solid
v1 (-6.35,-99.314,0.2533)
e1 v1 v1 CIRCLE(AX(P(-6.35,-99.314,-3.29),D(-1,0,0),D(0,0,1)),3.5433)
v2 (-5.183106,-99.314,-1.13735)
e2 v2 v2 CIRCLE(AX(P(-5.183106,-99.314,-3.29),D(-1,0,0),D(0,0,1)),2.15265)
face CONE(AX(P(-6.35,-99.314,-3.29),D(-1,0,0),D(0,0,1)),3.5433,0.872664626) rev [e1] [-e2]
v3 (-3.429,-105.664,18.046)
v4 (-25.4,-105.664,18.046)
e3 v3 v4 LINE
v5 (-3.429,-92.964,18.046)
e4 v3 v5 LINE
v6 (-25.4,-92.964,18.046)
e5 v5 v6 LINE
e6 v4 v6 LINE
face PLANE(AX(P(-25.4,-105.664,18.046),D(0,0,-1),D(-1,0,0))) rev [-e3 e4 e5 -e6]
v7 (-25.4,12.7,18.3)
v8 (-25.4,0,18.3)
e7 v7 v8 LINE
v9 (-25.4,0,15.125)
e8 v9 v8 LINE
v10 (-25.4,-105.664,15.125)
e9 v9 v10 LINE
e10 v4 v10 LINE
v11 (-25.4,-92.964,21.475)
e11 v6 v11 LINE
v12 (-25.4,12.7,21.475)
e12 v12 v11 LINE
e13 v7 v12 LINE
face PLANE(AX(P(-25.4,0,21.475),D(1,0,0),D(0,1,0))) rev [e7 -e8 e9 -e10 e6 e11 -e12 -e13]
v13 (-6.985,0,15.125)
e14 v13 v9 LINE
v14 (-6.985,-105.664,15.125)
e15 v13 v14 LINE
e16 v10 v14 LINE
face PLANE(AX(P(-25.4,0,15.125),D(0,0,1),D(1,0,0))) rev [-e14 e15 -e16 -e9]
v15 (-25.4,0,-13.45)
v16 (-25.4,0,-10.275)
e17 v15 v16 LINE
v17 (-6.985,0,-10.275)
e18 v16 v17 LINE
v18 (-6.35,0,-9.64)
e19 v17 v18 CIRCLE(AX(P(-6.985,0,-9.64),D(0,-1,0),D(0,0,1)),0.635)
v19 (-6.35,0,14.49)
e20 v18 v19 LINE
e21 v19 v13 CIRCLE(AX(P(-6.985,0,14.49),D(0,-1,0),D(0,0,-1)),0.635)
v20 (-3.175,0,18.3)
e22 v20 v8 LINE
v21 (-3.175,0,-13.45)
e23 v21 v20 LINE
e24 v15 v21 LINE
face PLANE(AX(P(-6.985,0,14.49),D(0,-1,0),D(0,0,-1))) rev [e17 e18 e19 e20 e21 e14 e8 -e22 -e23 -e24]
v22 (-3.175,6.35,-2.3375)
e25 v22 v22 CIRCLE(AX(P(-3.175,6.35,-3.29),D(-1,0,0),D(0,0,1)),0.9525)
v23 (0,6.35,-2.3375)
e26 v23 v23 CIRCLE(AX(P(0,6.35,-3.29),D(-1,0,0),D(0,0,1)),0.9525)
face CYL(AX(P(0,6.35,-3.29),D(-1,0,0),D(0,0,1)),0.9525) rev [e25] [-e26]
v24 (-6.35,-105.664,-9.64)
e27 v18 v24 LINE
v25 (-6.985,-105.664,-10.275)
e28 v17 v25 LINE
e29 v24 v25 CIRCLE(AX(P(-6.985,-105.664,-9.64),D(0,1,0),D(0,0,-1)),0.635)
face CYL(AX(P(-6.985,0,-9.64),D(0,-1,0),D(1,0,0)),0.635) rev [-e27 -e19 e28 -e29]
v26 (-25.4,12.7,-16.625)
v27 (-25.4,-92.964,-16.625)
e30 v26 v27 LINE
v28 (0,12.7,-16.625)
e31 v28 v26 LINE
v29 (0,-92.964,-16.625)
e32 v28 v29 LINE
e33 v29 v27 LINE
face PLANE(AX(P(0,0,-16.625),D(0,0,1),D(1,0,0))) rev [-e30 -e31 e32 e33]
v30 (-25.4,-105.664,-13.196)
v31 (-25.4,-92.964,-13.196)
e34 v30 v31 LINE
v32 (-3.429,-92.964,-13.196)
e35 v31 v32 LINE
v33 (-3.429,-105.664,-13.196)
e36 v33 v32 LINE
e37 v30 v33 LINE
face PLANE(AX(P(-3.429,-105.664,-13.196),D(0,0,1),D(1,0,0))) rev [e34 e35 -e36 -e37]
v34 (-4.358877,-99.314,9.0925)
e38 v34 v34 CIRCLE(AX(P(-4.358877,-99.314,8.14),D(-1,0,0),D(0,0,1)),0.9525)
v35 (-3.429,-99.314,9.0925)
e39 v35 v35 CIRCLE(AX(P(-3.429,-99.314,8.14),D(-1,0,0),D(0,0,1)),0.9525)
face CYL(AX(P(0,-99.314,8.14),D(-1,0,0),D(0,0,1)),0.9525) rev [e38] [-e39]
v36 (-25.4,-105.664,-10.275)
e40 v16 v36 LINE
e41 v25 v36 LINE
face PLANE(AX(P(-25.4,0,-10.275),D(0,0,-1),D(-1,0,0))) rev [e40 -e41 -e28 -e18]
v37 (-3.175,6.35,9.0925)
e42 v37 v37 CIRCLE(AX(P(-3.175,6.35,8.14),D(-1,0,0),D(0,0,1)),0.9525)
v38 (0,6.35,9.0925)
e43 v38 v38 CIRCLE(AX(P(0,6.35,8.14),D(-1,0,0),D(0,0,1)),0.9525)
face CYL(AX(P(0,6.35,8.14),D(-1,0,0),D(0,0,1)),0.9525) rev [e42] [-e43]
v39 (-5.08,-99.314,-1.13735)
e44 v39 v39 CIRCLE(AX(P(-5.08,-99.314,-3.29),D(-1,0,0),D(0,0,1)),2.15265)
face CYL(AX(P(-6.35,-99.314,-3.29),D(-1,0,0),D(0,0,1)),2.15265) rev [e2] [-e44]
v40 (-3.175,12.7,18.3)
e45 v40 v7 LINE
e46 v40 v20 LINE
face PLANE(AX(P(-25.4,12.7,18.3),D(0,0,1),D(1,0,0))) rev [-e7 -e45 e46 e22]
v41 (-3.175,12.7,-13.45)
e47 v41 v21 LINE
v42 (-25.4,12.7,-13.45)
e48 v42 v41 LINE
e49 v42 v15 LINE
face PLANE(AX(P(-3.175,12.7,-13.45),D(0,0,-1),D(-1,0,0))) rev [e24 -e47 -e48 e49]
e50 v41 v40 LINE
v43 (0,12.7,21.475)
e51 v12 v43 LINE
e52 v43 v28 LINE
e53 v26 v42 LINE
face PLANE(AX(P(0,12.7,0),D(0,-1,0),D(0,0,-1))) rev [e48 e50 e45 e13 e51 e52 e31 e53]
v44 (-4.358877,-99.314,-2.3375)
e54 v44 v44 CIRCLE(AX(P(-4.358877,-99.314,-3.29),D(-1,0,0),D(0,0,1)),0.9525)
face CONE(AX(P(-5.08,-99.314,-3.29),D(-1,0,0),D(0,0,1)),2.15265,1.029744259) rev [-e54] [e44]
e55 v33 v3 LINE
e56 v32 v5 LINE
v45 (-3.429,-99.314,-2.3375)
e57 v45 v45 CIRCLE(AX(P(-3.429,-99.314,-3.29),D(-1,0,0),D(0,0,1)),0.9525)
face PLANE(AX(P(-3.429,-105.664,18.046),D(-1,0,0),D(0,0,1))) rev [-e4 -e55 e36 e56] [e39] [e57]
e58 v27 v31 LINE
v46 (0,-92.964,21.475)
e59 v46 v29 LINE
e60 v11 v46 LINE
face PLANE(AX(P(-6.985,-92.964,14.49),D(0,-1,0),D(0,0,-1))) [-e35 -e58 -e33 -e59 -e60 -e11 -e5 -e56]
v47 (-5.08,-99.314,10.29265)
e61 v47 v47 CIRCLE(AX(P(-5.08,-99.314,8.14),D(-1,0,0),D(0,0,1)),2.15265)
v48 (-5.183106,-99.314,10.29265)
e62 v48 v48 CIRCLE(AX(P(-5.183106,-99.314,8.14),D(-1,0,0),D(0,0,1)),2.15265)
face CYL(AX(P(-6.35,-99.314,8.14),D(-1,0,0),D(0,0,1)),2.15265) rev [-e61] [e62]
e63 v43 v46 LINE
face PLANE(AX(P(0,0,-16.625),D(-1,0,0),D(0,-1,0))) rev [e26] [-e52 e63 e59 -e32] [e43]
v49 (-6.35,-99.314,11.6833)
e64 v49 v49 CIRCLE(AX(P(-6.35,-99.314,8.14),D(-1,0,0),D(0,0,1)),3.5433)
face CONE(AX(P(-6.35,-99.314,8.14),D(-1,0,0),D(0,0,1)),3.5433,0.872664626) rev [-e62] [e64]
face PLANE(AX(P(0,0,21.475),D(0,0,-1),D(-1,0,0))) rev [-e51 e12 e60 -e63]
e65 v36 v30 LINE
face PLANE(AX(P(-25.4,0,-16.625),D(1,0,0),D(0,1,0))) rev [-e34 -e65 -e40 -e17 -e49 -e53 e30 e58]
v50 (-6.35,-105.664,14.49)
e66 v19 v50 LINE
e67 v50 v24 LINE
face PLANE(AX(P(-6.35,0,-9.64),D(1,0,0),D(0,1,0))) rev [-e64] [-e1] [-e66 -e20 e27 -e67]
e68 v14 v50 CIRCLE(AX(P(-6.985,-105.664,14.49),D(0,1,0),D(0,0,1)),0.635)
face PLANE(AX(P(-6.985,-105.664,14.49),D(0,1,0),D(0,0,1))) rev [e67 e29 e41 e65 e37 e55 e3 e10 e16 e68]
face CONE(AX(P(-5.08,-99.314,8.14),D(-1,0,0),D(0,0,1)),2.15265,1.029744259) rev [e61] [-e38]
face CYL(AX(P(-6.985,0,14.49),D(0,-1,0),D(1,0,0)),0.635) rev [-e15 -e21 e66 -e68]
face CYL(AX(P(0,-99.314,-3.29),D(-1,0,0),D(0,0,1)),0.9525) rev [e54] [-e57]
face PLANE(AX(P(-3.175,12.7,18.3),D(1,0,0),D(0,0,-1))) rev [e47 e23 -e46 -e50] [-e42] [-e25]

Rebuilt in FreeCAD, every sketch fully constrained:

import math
import FreeCAD as App
import Part
import Sketcher
from FreeCAD import Vector
Q = App.Units.Quantity

doc = App.newDocument("Part")
params = doc.addObject("Spreadsheet::Sheet", "Params")
for row, (alias, value) in enumerate([
    ("sketch1_width", "1 in"),
    ("sketch1_height", "1.5 in"),
    ("sketch1_radius", "0.025 in"),
    ("sketch1_width2", "0.725 in"),
    ("sketch2_height", "3.66 in"),
    ("sketch3_radius", "0.025 in"),
    ("sketch3_height", "1.23 in"),
    ("sketch3_width", "0.865 in"),
    ("sketch3_width2", "0.725 in"),
    ("pad1_length", "0.5 in"),
    ("sketch4_width", "1 in"),
    ("sketch4_height", "1.5 in"),
    ("sketch4_height2", "1.25 in"),
    ("sketch4_width2", "0.875 in"),
    ("pad2_length", "0.5 in"),
    ("sketch5_diameter", "0.075 in"),
    ("sketch6_diameter", "0.075 in"),
    ("groove_angle", "360 deg"),
    ("linearpattern_pitch", "0.45 in"),
], start=1):
    params.set(f"A{row}", alias)
    params.set(f"B{row}", "=" + value)
    params.setAlias(f"B{row}", alias)

body = doc.addObject("PartDesign::Body", "Body")

sketch1 = body.newObject("Sketcher::SketchObject", "Sketch")
sketch1.AttachmentSupport = (doc.getObject("XZ_Plane"), [""])
sketch1.MapMode = "FlatFace"
sketch1.addGeometry(Part.LineSegment(Vector(0, -16.6, 0), Vector(-25.4, -16.6, 0)), False)
sketch1.addGeometry(Part.LineSegment(Vector(-25.4, -16.6, 0), Vector(-25.4, -10.3, 0)), False)
sketch1.addGeometry(Part.LineSegment(Vector(-25.4, -10.3, 0), Vector(-7, -10.3, 0)), False)
sketch1.addGeometry(Part.ArcOfCircle(Part.Circle(Vector(-7, -9.6, 0), Vector(0, 0, 1), 0.6), math.radians(-90), math.radians(0)), False)
sketch1.addGeometry(Part.LineSegment(Vector(-6.3, -9.6, 0), Vector(-6.3, 14.5, 0)), False)
sketch1.addGeometry(Part.ArcOfCircle(Part.Circle(Vector(-7, 14.5, 0), Vector(0, 0, 1), 0.6), math.radians(0), math.radians(90)), False)
sketch1.addGeometry(Part.LineSegment(Vector(-7, 15.1, 0), Vector(-25.4, 15.1, 0)), False)
sketch1.addGeometry(Part.LineSegment(Vector(-25.4, 15.1, 0), Vector(-25.4, 21.5, 0)), False)
sketch1.addGeometry(Part.LineSegment(Vector(-25.4, 21.5, 0), Vector(0, 21.5, 0)), False)
sketch1.addGeometry(Part.LineSegment(Vector(0, 21.5, 0), Vector(0, -16.6, 0)), False)
sketch1.addConstraint(Sketcher.Constraint("Coincident", 0, 2, 1, 1))
sketch1.addConstraint(Sketcher.Constraint("Coincident", 1, 2, 2, 1))
sketch1.addConstraint(Sketcher.Constraint("Tangent", 2, 2, 3, 1))
sketch1.addConstraint(Sketcher.Constraint("Tangent", 3, 2, 4, 1))
sketch1.addConstraint(Sketcher.Constraint("Tangent", 4, 2, 5, 1))
sketch1.addConstraint(Sketcher.Constraint("Tangent", 5, 2, 6, 1))
sketch1.addConstraint(Sketcher.Constraint("Coincident", 6, 2, 7, 1))
sketch1.addConstraint(Sketcher.Constraint("Coincident", 7, 2, 8, 1))
sketch1.addConstraint(Sketcher.Constraint("Coincident", 8, 2, 9, 1))
sketch1.addConstraint(Sketcher.Constraint("Coincident", 9, 2, 0, 1))
sketch1.addConstraint(Sketcher.Constraint("Horizontal", 0))
sketch1.addConstraint(Sketcher.Constraint("Vertical", 1))
sketch1.addConstraint(Sketcher.Constraint("Horizontal", 2))
sketch1.addConstraint(Sketcher.Constraint("Vertical", 4))
sketch1.addConstraint(Sketcher.Constraint("Horizontal", 6))
sketch1.addConstraint(Sketcher.Constraint("Vertical", 7))
sketch1.addConstraint(Sketcher.Constraint("Horizontal", 8))
sketch1.addConstraint(Sketcher.Constraint("Vertical", 9))
sketch1.addConstraint(Sketcher.Constraint("Equal", 3, 5))
sketch1.addConstraint(Sketcher.Constraint("PointOnObject", 8, 2, -2))
sketch1.addConstraint(Sketcher.Constraint("Vertical", 1, 2, 6, 2))
sketch1.addConstraint(Sketcher.Constraint("Equal", 1, 7))
sketch1.addConstraint(Sketcher.Constraint("DistanceX", 0, 2, 0, 1, Q("1 in")))
sketch1.addConstraint(Sketcher.Constraint("DistanceY", 9, 2, 9, 1, Q("1.5 in")))
sketch1.addConstraint(Sketcher.Constraint("Radius", 3, Q("0.025 in")))
sketch1.addConstraint(Sketcher.Constraint("DistanceY", 2, 2, 5, 2, Q("1 in")))
sketch1.addConstraint(Sketcher.Constraint("DistanceX", 2, 1, 2, 2, Q("0.725 in")))
sketch1.addConstraint(Sketcher.Constraint("DistanceY", 3, 3, -1, 1, 9.64))
sketch1.setExpression("Constraints[22]", "Params.sketch1_width")
sketch1.setExpression("Constraints[23]", "Params.sketch1_height")
sketch1.setExpression("Constraints[24]", "Params.sketch1_radius")
sketch1.setExpression("Constraints[26]", "Params.sketch1_width2")

sketch2 = body.newObject("Sketcher::SketchObject", "Sketch001")
sketch2.AttachmentSupport = (doc.getObject("XY_Plane"), [""])
sketch2.MapMode = "FlatFace"
sketch2.addGeometry(Part.LineSegment(Vector(0, 0, 0), Vector(0, -93, 0)), False)
sketch2.addConstraint(Sketcher.Constraint("Vertical", 0))
sketch2.addConstraint(Sketcher.Constraint("Coincident", 0, 1, -1, 1))
sketch2.addConstraint(Sketcher.Constraint("DistanceY", 0, 2, 0, 1, Q("3.66 in")))
sketch2.setExpression("Constraints[2]", "Params.sketch2_height")
doc.recompute()

additivepipe = body.newObject("PartDesign::AdditivePipe", "AdditivePipe")
additivepipe.Profile = sketch1
additivepipe.Spine = (sketch2, ["Edge1"])

sketch3 = body.newObject("Sketcher::SketchObject", "Sketch002")
sketch3.AttachmentSupport = (doc.getObject("XZ_Plane"), [""])
sketch3.MapMode = "FlatFace"
sketch3.AttachmentOffset = App.Placement(Vector(0, 0, 4.16 * 25.4), App.Rotation())
sketch3.addGeometry(Part.LineSegment(Vector(-3.4, 18, 0), Vector(-25.4, 18, 0)), False)
sketch3.addGeometry(Part.LineSegment(Vector(-25.4, 18, 0), Vector(-25.4, 15.1, 0)), False)
sketch3.addGeometry(Part.LineSegment(Vector(-25.4, 15.1, 0), Vector(-7, 15.1, 0)), False)
sketch3.addGeometry(Part.ArcOfCircle(Part.Circle(Vector(-7, 14.5, 0), Vector(0, 0, 1), 0.6), math.radians(0), math.radians(90)), False)
sketch3.addGeometry(Part.LineSegment(Vector(-6.3, 14.5, 0), Vector(-6.3, -9.6, 0)), False)
sketch3.addGeometry(Part.ArcOfCircle(Part.Circle(Vector(-7, -9.6, 0), Vector(0, 0, 1), 0.6), math.radians(-90), math.radians(0)), False)
sketch3.addGeometry(Part.LineSegment(Vector(-7, -10.3, 0), Vector(-25.4, -10.3, 0)), False)
sketch3.addGeometry(Part.LineSegment(Vector(-25.4, -10.3, 0), Vector(-25.4, -13.2, 0)), False)
sketch3.addGeometry(Part.LineSegment(Vector(-25.4, -13.2, 0), Vector(-3.4, -13.2, 0)), False)
sketch3.addGeometry(Part.LineSegment(Vector(-3.4, -13.2, 0), Vector(-3.4, 18, 0)), False)
sketch3.addConstraint(Sketcher.Constraint("Coincident", 0, 2, 1, 1))
sketch3.addConstraint(Sketcher.Constraint("Coincident", 1, 2, 2, 1))
sketch3.addConstraint(Sketcher.Constraint("Tangent", 2, 2, 3, 2))
sketch3.addConstraint(Sketcher.Constraint("Tangent", 3, 1, 4, 1))
sketch3.addConstraint(Sketcher.Constraint("Tangent", 4, 2, 5, 2))
sketch3.addConstraint(Sketcher.Constraint("Tangent", 5, 1, 6, 1))
sketch3.addConstraint(Sketcher.Constraint("Coincident", 6, 2, 7, 1))
sketch3.addConstraint(Sketcher.Constraint("Coincident", 7, 2, 8, 1))
sketch3.addConstraint(Sketcher.Constraint("Coincident", 8, 2, 9, 1))
sketch3.addConstraint(Sketcher.Constraint("Coincident", 9, 2, 0, 1))
sketch3.addConstraint(Sketcher.Constraint("Horizontal", 0))
sketch3.addConstraint(Sketcher.Constraint("Vertical", 1))
sketch3.addConstraint(Sketcher.Constraint("Horizontal", 2))
sketch3.addConstraint(Sketcher.Constraint("Vertical", 4))
sketch3.addConstraint(Sketcher.Constraint("Horizontal", 6))
sketch3.addConstraint(Sketcher.Constraint("Vertical", 7))
sketch3.addConstraint(Sketcher.Constraint("Horizontal", 8))
sketch3.addConstraint(Sketcher.Constraint("Vertical", 9))
sketch3.addConstraint(Sketcher.Constraint("Equal", 3, 5))
sketch3.addConstraint(Sketcher.Constraint("Vertical", 1, 2, 6, 2))
sketch3.addConstraint(Sketcher.Constraint("Equal", 1, 7))
sketch3.addConstraint(Sketcher.Constraint("DistanceX", 0, 2, -1, 1, Q("1 in")))
sketch3.addConstraint(Sketcher.Constraint("Radius", 3, Q("0.025 in")))
sketch3.addConstraint(Sketcher.Constraint("DistanceY", 5, 1, 2, 2, Q("1 in")))
sketch3.addConstraint(Sketcher.Constraint("DistanceY", 9, 1, 9, 2, Q("1.23 in")))
sketch3.addConstraint(Sketcher.Constraint("DistanceX", 0, 2, 0, 1, Q("0.865 in")))
sketch3.addConstraint(Sketcher.Constraint("DistanceX", 2, 1, 2, 2, Q("0.725 in")))
sketch3.addConstraint(Sketcher.Constraint("DistanceY", -1, 1, 3, 3, 14.49))
sketch3.setExpression("Constraints[22]", "Params.sketch3_radius")
sketch3.setExpression("Constraints[24]", "Params.sketch3_height")
sketch3.setExpression("Constraints[25]", "Params.sketch3_width")
sketch3.setExpression("Constraints[26]", "Params.sketch3_width2")
pad1 = body.newObject("PartDesign::Pad", "Pad")
pad1.Profile = sketch3
pad1.setExpression("Length", "Params.pad1_length")
pad1.Reversed = True

sketch4 = body.newObject("Sketcher::SketchObject", "Sketch003")
sketch4.AttachmentSupport = (doc.getObject("XZ_Plane"), [""])
sketch4.MapMode = "FlatFace"
sketch4.addGeometry(Part.LineSegment(Vector(-25.4, -16.6, 0), Vector(-25.4, -13.5, 0)), False)
sketch4.addGeometry(Part.LineSegment(Vector(-25.4, -13.5, 0), Vector(-3.2, -13.5, 0)), False)
sketch4.addGeometry(Part.LineSegment(Vector(-3.2, -13.5, 0), Vector(-3.2, 18.3, 0)), False)
sketch4.addGeometry(Part.LineSegment(Vector(-3.2, 18.3, 0), Vector(-25.4, 18.3, 0)), False)
sketch4.addGeometry(Part.LineSegment(Vector(-25.4, 18.3, 0), Vector(-25.4, 21.5, 0)), False)
sketch4.addGeometry(Part.LineSegment(Vector(-25.4, 21.5, 0), Vector(0, 21.5, 0)), False)
sketch4.addGeometry(Part.LineSegment(Vector(0, 21.5, 0), Vector(0, -16.6, 0)), False)
sketch4.addGeometry(Part.LineSegment(Vector(0, -16.6, 0), Vector(-25.4, -16.6, 0)), False)
sketch4.addConstraint(Sketcher.Constraint("Coincident", 0, 2, 1, 1))
sketch4.addConstraint(Sketcher.Constraint("Coincident", 1, 2, 2, 1))
sketch4.addConstraint(Sketcher.Constraint("Coincident", 2, 2, 3, 1))
sketch4.addConstraint(Sketcher.Constraint("Coincident", 3, 2, 4, 1))
sketch4.addConstraint(Sketcher.Constraint("Coincident", 4, 2, 5, 1))
sketch4.addConstraint(Sketcher.Constraint("Coincident", 5, 2, 6, 1))
sketch4.addConstraint(Sketcher.Constraint("Coincident", 6, 2, 7, 1))
sketch4.addConstraint(Sketcher.Constraint("Coincident", 7, 2, 0, 1))
sketch4.addConstraint(Sketcher.Constraint("Vertical", 0))
sketch4.addConstraint(Sketcher.Constraint("Horizontal", 1))
sketch4.addConstraint(Sketcher.Constraint("Vertical", 2))
sketch4.addConstraint(Sketcher.Constraint("Horizontal", 3))
sketch4.addConstraint(Sketcher.Constraint("Vertical", 4))
sketch4.addConstraint(Sketcher.Constraint("Horizontal", 5))
sketch4.addConstraint(Sketcher.Constraint("Vertical", 6))
sketch4.addConstraint(Sketcher.Constraint("Horizontal", 7))
sketch4.addConstraint(Sketcher.Constraint("PointOnObject", 5, 2, -2))
sketch4.addConstraint(Sketcher.Constraint("Vertical", 0, 2, 3, 2))
sketch4.addConstraint(Sketcher.Constraint("Equal", 0, 4))
sketch4.addConstraint(Sketcher.Constraint("DistanceX", 5, 1, 5, 2, Q("1 in")))
sketch4.addConstraint(Sketcher.Constraint("DistanceY", 6, 2, 6, 1, Q("1.5 in")))
sketch4.addConstraint(Sketcher.Constraint("DistanceY", 2, 1, 2, 2, Q("1.25 in")))
sketch4.addConstraint(Sketcher.Constraint("DistanceX", 1, 1, 1, 2, Q("0.875 in")))
sketch4.addConstraint(Sketcher.Constraint("DistanceY", 0, 2, -1, 1, 13.45))
sketch4.setExpression("Constraints[19]", "Params.sketch4_width")
sketch4.setExpression("Constraints[20]", "Params.sketch4_height")
sketch4.setExpression("Constraints[21]", "Params.sketch4_height2")
sketch4.setExpression("Constraints[22]", "Params.sketch4_width2")
pad2 = body.newObject("PartDesign::Pad", "Pad001")
pad2.Profile = sketch4
pad2.setExpression("Length", "Params.pad2_length")
pad2.Reversed = True

sketch5 = body.newObject("Sketcher::SketchObject", "Sketch004")
sketch5.AttachmentSupport = (doc.getObject("YZ_Plane"), [""])
sketch5.MapMode = "FlatFace"
sketch5.AttachmentOffset = App.Placement(Vector(0, 0, -0.125 * 25.4), App.Rotation())
sketch5.addGeometry(Part.Circle(Vector(6.3, -3.3, 0), Vector(0, 0, 1), 1), False)
sketch5.addGeometry(Part.Circle(Vector(6.3, 8.1, 0), Vector(0, 0, 1), 1), False)
sketch5.addConstraint(Sketcher.Constraint("Equal", 0, 1))
sketch5.addConstraint(Sketcher.Constraint("Vertical", 0, 3, 1, 3))
sketch5.addConstraint(Sketcher.Constraint("Diameter", 0, Q("0.075 in")))
sketch5.addConstraint(Sketcher.Constraint("DistanceX", -1, 1, 0, 3, Q("0.25 in")))
sketch5.addConstraint(Sketcher.Constraint("DistanceY", 0, 3, 1, 3, Q("0.45 in")))
sketch5.addConstraint(Sketcher.Constraint("DistanceY", 0, 3, -1, 1, 3.29))
sketch5.setExpression("Constraints[2]", "Params.sketch5_diameter")
pocket1 = body.newObject("PartDesign::Pocket", "Pocket")
pocket1.Profile = sketch5
pocket1.Type = "ThroughAll"
pocket1.Reversed = True

sketch6 = body.newObject("Sketcher::SketchObject", "Sketch005")
sketch6.AttachmentSupport = (doc.getObject("YZ_Plane"), [""])
sketch6.MapMode = "FlatFace"
sketch6.AttachmentOffset = App.Placement(Vector(0, 0, -0.25 * 25.4), App.Rotation())
sketch6.addGeometry(Part.Circle(Vector(-99.3, -3.3, 0), Vector(0, 0, 1), 1), False)
sketch6.addGeometry(Part.Circle(Vector(-99.3, 8.1, 0), Vector(0, 0, 1), 1), False)
sketch6.addConstraint(Sketcher.Constraint("Equal", 0, 1))
sketch6.addConstraint(Sketcher.Constraint("Vertical", 0, 3, 1, 3))
sketch6.addConstraint(Sketcher.Constraint("Diameter", 0, Q("0.075 in")))
sketch6.addConstraint(Sketcher.Constraint("DistanceX", 0, 3, -1, 1, Q("3.91 in")))
sketch6.addConstraint(Sketcher.Constraint("DistanceY", 0, 3, 1, 3, Q("0.45 in")))
sketch6.addConstraint(Sketcher.Constraint("DistanceY", 0, 3, -1, 1, 3.29))
sketch6.setExpression("Constraints[2]", "Params.sketch6_diameter")
pocket2 = body.newObject("PartDesign::Pocket", "Pocket001")
pocket2.Profile = sketch6
pocket2.Type = "ThroughAll"
pocket2.Reversed = True

sketch7 = body.newObject("Sketcher::SketchObject", "Sketch006")
sketch7.AttachmentSupport = (doc.getObject("XZ_Plane"), [""])
sketch7.MapMode = "FlatFace"
sketch7.AttachmentOffset = App.Placement(Vector(0, 0, 3.91 * 25.4), App.Rotation())
sketch7.addGeometry(Part.LineSegment(Vector(-3.79, -3.29, 0), Vector(-6.35, -3.29, 0)), False)
sketch7.addGeometry(Part.LineSegment(Vector(-6.35, -3.29, 0), Vector(-6.35, 0.25, 0)), False)
sketch7.addGeometry(Part.LineSegment(Vector(-6.35, 0.25, 0), Vector(-5.18, -1.14, 0)), False)
sketch7.addGeometry(Part.LineSegment(Vector(-5.18, -1.14, 0), Vector(-5.08, -1.14, 0)), False)
sketch7.addGeometry(Part.LineSegment(Vector(-5.08, -1.14, 0), Vector(-3.79, -3.29, 0)), False)
sketch7.addGeometry(Part.LineSegment(Vector(-6.35, -3.29, 0), Vector(-3.79, -3.29, 0)), True)
sketch7.addConstraint(Sketcher.Constraint("Coincident", 0, 2, 1, 1))
sketch7.addConstraint(Sketcher.Constraint("Coincident", 1, 2, 2, 1))
sketch7.addConstraint(Sketcher.Constraint("Coincident", 2, 2, 3, 1))
sketch7.addConstraint(Sketcher.Constraint("Coincident", 3, 2, 4, 1))
sketch7.addConstraint(Sketcher.Constraint("Coincident", 4, 2, 0, 1))
sketch7.addConstraint(Sketcher.Constraint("Horizontal", 0))
sketch7.addConstraint(Sketcher.Constraint("Vertical", 1))
sketch7.addConstraint(Sketcher.Constraint("Horizontal", 3))
sketch7.addConstraint(Sketcher.Constraint("Horizontal", 5))
sketch7.addConstraint(Sketcher.Constraint("Coincident", 5, 1, 0, 2))
sketch7.addConstraint(Sketcher.Constraint("Equal", 0, 5))
sketch7.addConstraint(Sketcher.Constraint("Angle", 2, Q("-50 deg")))
sketch7.addConstraint(Sketcher.Constraint("Angle", 4, Q("-59 deg")))
sketch7.addConstraint(Sketcher.Constraint("DistanceX", 3, 2, -1, 1, Q("0.2 in")))
sketch7.addConstraint(Sketcher.Constraint("DistanceX", 0, 2, -1, 1, Q("0.25 in")))
sketch7.addConstraint(Sketcher.Constraint("DistanceY", 1, 1, 1, 2, Q("0.1395 in")))
sketch7.addConstraint(Sketcher.Constraint("DistanceY", 0, 2, -1, 1, 3.29))
sketch7.addConstraint(Sketcher.Constraint("DistanceX", 0, 2, 0, 1, 2.563443))
groove = body.newObject("PartDesign::Groove", "Groove")
groove.Profile = sketch7
groove.ReferenceAxis = (sketch7, ["Axis0"])
groove.setExpression("Angle", "Params.groove_angle")
doc.recompute()

linearpattern = body.newObject("PartDesign::LinearPattern", "LinearPattern")
linearpattern.Originals = [groove]
linearpattern.Direction = (doc.getObject("Z_Axis"), [""])
linearpattern.Mode = "offset"
linearpattern.setExpression("Offset", "Params.linearpattern_pitch")
linearpattern.Occurrences = 2
body.Tip = linearpattern

doc.recompute()
